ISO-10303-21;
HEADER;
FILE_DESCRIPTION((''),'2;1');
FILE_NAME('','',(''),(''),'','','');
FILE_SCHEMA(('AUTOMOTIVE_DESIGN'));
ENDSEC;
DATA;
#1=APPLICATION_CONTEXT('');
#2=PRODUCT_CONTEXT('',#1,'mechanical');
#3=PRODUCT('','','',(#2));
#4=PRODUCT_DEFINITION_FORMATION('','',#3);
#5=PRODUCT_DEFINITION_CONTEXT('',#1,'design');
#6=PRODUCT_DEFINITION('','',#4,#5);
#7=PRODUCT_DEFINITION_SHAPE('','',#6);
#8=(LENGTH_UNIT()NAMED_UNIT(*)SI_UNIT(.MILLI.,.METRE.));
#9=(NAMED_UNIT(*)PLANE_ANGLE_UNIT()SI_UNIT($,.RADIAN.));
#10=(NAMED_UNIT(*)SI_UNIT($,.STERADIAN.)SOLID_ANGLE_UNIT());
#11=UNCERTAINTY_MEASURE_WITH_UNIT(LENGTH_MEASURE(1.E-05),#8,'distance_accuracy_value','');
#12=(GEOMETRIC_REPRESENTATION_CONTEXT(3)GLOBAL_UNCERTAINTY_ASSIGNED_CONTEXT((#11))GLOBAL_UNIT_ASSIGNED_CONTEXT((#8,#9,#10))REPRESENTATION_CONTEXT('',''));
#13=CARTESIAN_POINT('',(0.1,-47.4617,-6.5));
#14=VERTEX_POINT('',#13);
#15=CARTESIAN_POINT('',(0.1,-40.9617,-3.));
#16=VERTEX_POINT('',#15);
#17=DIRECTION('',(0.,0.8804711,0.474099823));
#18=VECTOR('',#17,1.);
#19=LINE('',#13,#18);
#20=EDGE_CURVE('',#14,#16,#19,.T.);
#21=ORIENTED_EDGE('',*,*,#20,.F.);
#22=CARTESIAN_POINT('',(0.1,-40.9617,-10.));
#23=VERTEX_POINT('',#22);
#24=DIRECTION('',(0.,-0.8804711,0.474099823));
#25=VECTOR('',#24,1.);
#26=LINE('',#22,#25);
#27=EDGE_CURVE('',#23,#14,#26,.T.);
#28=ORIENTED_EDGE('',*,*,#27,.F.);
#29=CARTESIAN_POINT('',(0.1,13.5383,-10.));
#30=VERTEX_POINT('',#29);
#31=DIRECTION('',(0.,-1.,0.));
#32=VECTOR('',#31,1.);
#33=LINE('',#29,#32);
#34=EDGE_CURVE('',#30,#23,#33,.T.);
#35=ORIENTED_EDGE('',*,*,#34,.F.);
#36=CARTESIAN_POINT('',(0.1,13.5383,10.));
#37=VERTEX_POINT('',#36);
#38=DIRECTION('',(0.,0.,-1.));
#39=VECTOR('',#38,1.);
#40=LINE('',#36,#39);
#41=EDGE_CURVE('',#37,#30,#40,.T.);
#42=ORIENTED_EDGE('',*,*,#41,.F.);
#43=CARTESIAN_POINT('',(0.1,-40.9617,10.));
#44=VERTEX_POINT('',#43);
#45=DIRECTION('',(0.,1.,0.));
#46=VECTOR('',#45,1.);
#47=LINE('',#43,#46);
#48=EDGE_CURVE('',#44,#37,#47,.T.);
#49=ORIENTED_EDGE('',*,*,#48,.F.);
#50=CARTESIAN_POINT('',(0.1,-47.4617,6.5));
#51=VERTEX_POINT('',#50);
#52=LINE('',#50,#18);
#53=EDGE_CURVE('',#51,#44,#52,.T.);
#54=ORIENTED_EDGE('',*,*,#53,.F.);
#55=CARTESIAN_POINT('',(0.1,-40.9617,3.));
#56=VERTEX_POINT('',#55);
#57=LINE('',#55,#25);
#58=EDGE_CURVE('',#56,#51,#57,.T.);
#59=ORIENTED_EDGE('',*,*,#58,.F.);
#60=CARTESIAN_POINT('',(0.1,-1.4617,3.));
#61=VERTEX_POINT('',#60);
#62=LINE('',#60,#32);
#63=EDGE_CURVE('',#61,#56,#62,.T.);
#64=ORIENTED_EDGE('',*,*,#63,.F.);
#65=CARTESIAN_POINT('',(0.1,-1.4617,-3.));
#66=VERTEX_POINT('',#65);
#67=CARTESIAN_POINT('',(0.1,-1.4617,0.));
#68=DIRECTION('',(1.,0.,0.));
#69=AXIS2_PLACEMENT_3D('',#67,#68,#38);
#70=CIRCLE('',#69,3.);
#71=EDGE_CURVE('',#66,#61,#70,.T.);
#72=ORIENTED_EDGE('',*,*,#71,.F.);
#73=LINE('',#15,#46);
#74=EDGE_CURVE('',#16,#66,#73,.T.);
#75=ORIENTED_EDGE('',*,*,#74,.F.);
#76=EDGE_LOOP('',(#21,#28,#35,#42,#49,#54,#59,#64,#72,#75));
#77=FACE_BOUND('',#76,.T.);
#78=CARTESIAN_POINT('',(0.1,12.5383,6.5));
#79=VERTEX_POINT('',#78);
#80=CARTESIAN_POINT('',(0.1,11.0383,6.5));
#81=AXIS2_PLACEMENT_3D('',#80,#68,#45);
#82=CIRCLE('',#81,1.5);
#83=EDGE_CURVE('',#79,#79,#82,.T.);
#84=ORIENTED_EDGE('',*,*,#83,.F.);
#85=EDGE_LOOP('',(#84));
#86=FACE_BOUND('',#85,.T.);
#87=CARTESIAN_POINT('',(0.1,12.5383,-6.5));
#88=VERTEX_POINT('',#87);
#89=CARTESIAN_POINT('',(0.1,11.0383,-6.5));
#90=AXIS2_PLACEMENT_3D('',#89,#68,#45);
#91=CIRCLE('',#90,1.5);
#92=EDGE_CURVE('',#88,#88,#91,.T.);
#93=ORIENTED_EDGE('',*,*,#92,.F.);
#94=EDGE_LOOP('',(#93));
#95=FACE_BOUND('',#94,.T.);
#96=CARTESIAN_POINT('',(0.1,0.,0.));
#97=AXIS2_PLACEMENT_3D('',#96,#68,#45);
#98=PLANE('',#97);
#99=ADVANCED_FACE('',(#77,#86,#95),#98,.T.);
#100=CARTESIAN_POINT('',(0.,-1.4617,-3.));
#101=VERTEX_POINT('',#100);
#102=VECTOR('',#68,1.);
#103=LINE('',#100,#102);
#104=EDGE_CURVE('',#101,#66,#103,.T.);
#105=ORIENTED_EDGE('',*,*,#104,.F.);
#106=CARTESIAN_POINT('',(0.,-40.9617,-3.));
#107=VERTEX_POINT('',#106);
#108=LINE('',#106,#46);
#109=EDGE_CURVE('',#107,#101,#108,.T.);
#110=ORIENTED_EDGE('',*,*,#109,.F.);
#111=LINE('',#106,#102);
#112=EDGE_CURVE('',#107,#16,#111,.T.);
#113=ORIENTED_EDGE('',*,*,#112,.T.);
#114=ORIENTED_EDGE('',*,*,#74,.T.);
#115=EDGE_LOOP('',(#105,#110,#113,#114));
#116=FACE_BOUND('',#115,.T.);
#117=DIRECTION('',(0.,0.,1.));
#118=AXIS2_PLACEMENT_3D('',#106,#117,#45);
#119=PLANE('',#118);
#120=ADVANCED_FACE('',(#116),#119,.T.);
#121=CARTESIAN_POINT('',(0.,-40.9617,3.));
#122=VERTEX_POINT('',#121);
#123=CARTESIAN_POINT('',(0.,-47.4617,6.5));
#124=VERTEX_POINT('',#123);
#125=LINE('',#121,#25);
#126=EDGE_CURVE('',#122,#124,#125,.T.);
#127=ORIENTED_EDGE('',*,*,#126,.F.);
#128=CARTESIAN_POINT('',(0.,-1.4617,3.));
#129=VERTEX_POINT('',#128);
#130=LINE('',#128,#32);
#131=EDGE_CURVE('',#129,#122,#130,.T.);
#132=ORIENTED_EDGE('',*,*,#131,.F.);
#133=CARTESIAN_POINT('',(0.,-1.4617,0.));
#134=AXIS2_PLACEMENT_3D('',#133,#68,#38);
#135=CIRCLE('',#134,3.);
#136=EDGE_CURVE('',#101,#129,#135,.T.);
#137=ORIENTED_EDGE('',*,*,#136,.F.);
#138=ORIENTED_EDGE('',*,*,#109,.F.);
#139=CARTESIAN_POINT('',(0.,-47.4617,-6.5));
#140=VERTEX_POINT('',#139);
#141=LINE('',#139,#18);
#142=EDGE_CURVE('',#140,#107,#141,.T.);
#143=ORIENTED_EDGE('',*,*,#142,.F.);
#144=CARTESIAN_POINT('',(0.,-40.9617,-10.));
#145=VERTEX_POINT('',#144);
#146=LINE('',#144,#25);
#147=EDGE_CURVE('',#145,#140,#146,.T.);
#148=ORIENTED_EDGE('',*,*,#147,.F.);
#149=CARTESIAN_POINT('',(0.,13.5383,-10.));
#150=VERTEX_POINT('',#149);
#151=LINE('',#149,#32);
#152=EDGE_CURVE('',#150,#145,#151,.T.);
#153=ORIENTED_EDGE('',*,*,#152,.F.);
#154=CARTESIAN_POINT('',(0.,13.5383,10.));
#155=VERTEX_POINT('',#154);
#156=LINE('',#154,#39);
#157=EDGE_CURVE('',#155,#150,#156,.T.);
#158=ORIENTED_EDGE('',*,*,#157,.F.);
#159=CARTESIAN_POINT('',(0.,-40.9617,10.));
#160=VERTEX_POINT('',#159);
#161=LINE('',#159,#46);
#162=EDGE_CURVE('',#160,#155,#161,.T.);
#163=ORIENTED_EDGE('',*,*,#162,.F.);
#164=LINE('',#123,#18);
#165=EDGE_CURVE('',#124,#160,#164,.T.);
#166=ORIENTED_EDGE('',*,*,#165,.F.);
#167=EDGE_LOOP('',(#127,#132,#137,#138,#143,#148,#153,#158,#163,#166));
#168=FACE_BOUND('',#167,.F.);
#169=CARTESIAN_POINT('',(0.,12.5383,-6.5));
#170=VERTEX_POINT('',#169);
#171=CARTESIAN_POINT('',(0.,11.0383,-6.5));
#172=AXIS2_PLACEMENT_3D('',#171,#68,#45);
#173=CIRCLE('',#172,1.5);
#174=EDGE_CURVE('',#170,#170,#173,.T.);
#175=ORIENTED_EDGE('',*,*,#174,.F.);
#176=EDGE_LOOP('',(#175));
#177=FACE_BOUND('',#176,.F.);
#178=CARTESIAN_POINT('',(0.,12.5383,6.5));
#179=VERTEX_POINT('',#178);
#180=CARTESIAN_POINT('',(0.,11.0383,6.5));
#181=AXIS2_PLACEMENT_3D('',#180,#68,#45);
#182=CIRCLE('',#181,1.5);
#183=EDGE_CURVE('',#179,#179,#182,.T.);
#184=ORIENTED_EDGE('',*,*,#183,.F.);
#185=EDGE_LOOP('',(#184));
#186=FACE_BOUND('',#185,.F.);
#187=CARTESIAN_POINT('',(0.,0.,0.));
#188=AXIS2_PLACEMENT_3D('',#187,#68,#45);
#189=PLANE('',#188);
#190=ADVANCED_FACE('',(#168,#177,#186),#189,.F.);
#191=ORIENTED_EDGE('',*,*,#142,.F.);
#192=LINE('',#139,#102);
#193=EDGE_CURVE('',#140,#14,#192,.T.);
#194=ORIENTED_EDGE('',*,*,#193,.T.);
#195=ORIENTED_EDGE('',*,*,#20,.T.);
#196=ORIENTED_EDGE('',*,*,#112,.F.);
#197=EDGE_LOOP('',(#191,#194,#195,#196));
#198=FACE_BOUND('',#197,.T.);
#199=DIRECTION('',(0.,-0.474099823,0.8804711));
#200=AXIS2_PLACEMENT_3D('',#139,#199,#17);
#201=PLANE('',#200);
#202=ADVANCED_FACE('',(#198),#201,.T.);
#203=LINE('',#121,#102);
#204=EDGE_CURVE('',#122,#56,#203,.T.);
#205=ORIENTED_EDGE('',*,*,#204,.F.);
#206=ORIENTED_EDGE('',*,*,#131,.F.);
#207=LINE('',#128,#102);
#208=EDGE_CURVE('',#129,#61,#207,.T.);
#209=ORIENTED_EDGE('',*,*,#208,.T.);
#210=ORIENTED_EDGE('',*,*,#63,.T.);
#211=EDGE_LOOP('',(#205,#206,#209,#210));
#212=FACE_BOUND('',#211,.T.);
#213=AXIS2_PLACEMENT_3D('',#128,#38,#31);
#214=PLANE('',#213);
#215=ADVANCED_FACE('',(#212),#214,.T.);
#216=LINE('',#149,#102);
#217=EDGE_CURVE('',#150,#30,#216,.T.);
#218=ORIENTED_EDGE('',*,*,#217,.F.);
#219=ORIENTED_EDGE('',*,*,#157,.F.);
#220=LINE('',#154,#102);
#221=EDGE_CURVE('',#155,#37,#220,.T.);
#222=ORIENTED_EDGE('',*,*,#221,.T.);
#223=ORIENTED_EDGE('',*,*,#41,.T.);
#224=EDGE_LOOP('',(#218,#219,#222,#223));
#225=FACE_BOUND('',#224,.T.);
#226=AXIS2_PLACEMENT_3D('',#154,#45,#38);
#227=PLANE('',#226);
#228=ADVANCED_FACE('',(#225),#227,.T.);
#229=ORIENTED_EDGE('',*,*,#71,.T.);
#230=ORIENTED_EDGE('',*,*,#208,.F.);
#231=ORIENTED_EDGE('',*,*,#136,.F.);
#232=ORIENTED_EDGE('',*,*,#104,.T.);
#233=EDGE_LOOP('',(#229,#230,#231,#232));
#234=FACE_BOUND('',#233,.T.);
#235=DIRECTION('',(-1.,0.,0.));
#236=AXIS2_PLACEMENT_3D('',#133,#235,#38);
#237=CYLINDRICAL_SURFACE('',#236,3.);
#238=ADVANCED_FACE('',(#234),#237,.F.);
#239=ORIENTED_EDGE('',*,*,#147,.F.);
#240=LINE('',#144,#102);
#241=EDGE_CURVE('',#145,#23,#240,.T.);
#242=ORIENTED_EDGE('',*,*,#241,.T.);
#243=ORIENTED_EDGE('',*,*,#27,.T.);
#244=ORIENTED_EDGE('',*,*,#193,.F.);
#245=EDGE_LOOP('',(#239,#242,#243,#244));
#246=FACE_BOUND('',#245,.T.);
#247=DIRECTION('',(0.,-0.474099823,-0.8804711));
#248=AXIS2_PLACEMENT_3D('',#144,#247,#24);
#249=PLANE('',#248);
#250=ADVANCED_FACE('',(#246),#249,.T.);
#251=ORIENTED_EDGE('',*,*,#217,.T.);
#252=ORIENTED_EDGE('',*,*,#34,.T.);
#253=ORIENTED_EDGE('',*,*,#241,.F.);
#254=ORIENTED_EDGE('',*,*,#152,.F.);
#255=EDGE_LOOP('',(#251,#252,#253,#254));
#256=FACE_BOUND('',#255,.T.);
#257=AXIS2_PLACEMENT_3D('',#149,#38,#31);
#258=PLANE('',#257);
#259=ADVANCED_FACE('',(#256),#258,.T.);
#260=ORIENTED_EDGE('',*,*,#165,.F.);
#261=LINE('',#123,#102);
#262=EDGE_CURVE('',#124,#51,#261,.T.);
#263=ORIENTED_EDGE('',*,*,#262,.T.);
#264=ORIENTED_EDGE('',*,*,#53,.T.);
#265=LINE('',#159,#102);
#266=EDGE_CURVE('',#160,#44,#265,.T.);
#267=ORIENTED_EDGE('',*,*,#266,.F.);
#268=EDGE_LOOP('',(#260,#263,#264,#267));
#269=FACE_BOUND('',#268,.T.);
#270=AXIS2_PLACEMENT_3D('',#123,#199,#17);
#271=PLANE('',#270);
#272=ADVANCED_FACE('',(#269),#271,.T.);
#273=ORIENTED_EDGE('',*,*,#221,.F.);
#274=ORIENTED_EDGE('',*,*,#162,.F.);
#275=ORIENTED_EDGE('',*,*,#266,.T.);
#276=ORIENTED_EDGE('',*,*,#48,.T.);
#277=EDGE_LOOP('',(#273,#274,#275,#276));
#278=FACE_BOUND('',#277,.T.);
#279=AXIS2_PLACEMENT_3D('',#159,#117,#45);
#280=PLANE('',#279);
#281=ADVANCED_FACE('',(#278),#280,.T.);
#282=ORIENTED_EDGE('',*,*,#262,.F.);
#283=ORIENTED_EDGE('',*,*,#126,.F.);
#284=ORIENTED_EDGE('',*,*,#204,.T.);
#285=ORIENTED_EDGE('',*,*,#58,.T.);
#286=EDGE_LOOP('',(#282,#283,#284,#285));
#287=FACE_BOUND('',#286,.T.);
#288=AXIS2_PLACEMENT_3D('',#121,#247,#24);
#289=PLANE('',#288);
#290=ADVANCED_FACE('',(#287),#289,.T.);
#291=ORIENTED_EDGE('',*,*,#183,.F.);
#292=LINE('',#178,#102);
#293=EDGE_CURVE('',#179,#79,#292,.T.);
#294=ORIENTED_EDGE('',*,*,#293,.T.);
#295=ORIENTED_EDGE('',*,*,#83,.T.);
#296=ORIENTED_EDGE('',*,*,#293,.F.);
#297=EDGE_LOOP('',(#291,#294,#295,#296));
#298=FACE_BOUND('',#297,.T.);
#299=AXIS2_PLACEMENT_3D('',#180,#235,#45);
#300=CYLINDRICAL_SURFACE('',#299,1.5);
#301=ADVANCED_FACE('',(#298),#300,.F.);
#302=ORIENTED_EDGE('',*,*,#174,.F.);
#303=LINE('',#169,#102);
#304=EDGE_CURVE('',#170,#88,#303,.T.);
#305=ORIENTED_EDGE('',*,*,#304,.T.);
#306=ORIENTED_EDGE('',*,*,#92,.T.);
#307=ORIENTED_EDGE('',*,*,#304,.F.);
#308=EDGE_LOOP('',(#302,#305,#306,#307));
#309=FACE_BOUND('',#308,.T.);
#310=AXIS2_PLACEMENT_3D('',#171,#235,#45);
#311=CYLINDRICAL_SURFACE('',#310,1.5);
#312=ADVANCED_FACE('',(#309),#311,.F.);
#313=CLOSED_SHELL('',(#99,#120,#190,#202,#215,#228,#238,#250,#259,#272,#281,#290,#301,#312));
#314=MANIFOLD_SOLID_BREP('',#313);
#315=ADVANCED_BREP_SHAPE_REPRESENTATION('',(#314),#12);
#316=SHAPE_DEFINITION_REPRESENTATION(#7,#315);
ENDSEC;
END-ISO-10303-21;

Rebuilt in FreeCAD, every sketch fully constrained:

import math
import FreeCAD as App
import Part
import Sketcher
from FreeCAD import Vector

doc = App.newDocument("Part")
body = doc.addObject("PartDesign::Body", "Body")

# Sketch on YZ plane
sketch1 = body.newObject("Sketcher::SketchObject", "Sketch")
sketch1.AttachmentSupport = (doc.getObject("YZ_Plane"), [""])
sketch1.MapMode = "FlatFace"
sketch1.addGeometry(Part.LineSegment(Vector(13.5383, -10, 0), Vector(13.5383, 10, 0)), False)
sketch1.addGeometry(Part.LineSegment(Vector(13.5383, 10, 0), Vector(-40.9617, 10, 0)), False)
sketch1.addGeometry(Part.LineSegment(Vector(-40.9617, 10, 0), Vector(-47.4617, 6.5, 0)), False)
sketch1.addGeometry(Part.LineSegment(Vector(-47.4617, 6.5, 0), Vector(-40.9617, 3, 0)), False)
sketch1.addGeometry(Part.LineSegment(Vector(-40.9617, 3, 0), Vector(-1.4617, 3, 0)), False)
sketch1.addGeometry(Part.ArcOfCircle(Part.Circle(Vector(-1.4617, 0, 0), Vector(0, 0, 1), 3), math.radians(-90), math.radians(90)), False)
sketch1.addGeometry(Part.LineSegment(Vector(-1.4617, -3, 0), Vector(-40.9617, -3, 0)), False)
sketch1.addGeometry(Part.LineSegment(Vector(-40.9617, -3, 0), Vector(-47.4617, -6.5, 0)), False)
sketch1.addGeometry(Part.LineSegment(Vector(-47.4617, -6.5, 0), Vector(-40.9617, -10, 0)), False)
sketch1.addGeometry(Part.LineSegment(Vector(-40.9617, -10, 0), Vector(13.5383, -10, 0)), False)
sketch1.addGeometry(Part.Circle(Vector(11.0383, -6.5, 0), Vector(0, 0, 1), 1.5), False)
sketch1.addGeometry(Part.Circle(Vector(11.0383, 6.5, 0), Vector(0, 0, 1), 1.5), False)
sketch1.addConstraint(Sketcher.Constraint("Coincident", 0, 2, 1, 1))
sketch1.addConstraint(Sketcher.Constraint("Coincident", 1, 2, 2, 1))
sketch1.addConstraint(Sketcher.Constraint("Coincident", 2, 2, 3, 1))
sketch1.addConstraint(Sketcher.Constraint("Coincident", 3, 2, 4, 1))
sketch1.addConstraint(Sketcher.Constraint("Tangent", 4, 2, 5, 2))
sketch1.addConstraint(Sketcher.Constraint("Tangent", 5, 1, 6, 1))
sketch1.addConstraint(Sketcher.Constraint("Coincident", 6, 2, 7, 1))
sketch1.addConstraint(Sketcher.Constraint("Coincident", 7, 2, 8, 1))
sketch1.addConstraint(Sketcher.Constraint("Coincident", 8, 2, 9, 1))
sketch1.addConstraint(Sketcher.Constraint("Coincident", 9, 2, 0, 1))
sketch1.addConstraint(Sketcher.Constraint("Vertical", 0))
sketch1.addConstraint(Sketcher.Constraint("Horizontal", 1))
sketch1.addConstraint(Sketcher.Constraint("Horizontal", 4))
sketch1.addConstraint(Sketcher.Constraint("Horizontal", 6))
sketch1.addConstraint(Sketcher.Constraint("Horizontal", 9))
sketch1.addConstraint(Sketcher.Constraint("Equal", 10, 11))
sketch1.addConstraint(Sketcher.Constraint("Symmetric", 10, 3, 11, 3, -1))
sketch1.addConstraint(Sketcher.Constraint("Symmetric", 3, 2, 6, 2, -1))
sketch1.addConstraint(Sketcher.Constraint("Symmetric", 2, 2, 7, 2, -1))
sketch1.addConstraint(Sketcher.Constraint("Symmetric", 1, 2, 8, 2, -1))
sketch1.addConstraint(Sketcher.Constraint("Parallel", 2, 7))
sketch1.addConstraint(Sketcher.Constraint("Horizontal", 11, 3, 2, 2))
sketch1.addConstraint(Sketcher.Constraint("Vertical", 1, 2, 3, 2))
sketch1.addConstraint(Sketcher.Constraint("Diameter", 10, 3.0))
sketch1.addConstraint(Sketcher.Constraint("Radius", 5, 3.0))
sketch1.addConstraint(Sketcher.Constraint("DistanceY", 0, 1, 0, 2, 20.0))
sketch1.addConstraint(Sketcher.Constraint("DistanceX", 1, 2, 1, 1, 54.5))
sketch1.addConstraint(Sketcher.Constraint("DistanceX", 4, 1, 4, 2, 39.5))
sketch1.addConstraint(Sketcher.Constraint("DistanceX", 2, 2, 0, 2, 61.0))
sketch1.addConstraint(Sketcher.Constraint("DistanceX", 1, 2, 11, 3, 52.0))
sketch1.addConstraint(Sketcher.Constraint("DistanceX", 5, 3, -1, 1, 1.4617))
pad1 = body.newObject("PartDesign::Pad", "Pad")
pad1.Profile = sketch1
pad1.Length = 0.1

doc.recompute()
